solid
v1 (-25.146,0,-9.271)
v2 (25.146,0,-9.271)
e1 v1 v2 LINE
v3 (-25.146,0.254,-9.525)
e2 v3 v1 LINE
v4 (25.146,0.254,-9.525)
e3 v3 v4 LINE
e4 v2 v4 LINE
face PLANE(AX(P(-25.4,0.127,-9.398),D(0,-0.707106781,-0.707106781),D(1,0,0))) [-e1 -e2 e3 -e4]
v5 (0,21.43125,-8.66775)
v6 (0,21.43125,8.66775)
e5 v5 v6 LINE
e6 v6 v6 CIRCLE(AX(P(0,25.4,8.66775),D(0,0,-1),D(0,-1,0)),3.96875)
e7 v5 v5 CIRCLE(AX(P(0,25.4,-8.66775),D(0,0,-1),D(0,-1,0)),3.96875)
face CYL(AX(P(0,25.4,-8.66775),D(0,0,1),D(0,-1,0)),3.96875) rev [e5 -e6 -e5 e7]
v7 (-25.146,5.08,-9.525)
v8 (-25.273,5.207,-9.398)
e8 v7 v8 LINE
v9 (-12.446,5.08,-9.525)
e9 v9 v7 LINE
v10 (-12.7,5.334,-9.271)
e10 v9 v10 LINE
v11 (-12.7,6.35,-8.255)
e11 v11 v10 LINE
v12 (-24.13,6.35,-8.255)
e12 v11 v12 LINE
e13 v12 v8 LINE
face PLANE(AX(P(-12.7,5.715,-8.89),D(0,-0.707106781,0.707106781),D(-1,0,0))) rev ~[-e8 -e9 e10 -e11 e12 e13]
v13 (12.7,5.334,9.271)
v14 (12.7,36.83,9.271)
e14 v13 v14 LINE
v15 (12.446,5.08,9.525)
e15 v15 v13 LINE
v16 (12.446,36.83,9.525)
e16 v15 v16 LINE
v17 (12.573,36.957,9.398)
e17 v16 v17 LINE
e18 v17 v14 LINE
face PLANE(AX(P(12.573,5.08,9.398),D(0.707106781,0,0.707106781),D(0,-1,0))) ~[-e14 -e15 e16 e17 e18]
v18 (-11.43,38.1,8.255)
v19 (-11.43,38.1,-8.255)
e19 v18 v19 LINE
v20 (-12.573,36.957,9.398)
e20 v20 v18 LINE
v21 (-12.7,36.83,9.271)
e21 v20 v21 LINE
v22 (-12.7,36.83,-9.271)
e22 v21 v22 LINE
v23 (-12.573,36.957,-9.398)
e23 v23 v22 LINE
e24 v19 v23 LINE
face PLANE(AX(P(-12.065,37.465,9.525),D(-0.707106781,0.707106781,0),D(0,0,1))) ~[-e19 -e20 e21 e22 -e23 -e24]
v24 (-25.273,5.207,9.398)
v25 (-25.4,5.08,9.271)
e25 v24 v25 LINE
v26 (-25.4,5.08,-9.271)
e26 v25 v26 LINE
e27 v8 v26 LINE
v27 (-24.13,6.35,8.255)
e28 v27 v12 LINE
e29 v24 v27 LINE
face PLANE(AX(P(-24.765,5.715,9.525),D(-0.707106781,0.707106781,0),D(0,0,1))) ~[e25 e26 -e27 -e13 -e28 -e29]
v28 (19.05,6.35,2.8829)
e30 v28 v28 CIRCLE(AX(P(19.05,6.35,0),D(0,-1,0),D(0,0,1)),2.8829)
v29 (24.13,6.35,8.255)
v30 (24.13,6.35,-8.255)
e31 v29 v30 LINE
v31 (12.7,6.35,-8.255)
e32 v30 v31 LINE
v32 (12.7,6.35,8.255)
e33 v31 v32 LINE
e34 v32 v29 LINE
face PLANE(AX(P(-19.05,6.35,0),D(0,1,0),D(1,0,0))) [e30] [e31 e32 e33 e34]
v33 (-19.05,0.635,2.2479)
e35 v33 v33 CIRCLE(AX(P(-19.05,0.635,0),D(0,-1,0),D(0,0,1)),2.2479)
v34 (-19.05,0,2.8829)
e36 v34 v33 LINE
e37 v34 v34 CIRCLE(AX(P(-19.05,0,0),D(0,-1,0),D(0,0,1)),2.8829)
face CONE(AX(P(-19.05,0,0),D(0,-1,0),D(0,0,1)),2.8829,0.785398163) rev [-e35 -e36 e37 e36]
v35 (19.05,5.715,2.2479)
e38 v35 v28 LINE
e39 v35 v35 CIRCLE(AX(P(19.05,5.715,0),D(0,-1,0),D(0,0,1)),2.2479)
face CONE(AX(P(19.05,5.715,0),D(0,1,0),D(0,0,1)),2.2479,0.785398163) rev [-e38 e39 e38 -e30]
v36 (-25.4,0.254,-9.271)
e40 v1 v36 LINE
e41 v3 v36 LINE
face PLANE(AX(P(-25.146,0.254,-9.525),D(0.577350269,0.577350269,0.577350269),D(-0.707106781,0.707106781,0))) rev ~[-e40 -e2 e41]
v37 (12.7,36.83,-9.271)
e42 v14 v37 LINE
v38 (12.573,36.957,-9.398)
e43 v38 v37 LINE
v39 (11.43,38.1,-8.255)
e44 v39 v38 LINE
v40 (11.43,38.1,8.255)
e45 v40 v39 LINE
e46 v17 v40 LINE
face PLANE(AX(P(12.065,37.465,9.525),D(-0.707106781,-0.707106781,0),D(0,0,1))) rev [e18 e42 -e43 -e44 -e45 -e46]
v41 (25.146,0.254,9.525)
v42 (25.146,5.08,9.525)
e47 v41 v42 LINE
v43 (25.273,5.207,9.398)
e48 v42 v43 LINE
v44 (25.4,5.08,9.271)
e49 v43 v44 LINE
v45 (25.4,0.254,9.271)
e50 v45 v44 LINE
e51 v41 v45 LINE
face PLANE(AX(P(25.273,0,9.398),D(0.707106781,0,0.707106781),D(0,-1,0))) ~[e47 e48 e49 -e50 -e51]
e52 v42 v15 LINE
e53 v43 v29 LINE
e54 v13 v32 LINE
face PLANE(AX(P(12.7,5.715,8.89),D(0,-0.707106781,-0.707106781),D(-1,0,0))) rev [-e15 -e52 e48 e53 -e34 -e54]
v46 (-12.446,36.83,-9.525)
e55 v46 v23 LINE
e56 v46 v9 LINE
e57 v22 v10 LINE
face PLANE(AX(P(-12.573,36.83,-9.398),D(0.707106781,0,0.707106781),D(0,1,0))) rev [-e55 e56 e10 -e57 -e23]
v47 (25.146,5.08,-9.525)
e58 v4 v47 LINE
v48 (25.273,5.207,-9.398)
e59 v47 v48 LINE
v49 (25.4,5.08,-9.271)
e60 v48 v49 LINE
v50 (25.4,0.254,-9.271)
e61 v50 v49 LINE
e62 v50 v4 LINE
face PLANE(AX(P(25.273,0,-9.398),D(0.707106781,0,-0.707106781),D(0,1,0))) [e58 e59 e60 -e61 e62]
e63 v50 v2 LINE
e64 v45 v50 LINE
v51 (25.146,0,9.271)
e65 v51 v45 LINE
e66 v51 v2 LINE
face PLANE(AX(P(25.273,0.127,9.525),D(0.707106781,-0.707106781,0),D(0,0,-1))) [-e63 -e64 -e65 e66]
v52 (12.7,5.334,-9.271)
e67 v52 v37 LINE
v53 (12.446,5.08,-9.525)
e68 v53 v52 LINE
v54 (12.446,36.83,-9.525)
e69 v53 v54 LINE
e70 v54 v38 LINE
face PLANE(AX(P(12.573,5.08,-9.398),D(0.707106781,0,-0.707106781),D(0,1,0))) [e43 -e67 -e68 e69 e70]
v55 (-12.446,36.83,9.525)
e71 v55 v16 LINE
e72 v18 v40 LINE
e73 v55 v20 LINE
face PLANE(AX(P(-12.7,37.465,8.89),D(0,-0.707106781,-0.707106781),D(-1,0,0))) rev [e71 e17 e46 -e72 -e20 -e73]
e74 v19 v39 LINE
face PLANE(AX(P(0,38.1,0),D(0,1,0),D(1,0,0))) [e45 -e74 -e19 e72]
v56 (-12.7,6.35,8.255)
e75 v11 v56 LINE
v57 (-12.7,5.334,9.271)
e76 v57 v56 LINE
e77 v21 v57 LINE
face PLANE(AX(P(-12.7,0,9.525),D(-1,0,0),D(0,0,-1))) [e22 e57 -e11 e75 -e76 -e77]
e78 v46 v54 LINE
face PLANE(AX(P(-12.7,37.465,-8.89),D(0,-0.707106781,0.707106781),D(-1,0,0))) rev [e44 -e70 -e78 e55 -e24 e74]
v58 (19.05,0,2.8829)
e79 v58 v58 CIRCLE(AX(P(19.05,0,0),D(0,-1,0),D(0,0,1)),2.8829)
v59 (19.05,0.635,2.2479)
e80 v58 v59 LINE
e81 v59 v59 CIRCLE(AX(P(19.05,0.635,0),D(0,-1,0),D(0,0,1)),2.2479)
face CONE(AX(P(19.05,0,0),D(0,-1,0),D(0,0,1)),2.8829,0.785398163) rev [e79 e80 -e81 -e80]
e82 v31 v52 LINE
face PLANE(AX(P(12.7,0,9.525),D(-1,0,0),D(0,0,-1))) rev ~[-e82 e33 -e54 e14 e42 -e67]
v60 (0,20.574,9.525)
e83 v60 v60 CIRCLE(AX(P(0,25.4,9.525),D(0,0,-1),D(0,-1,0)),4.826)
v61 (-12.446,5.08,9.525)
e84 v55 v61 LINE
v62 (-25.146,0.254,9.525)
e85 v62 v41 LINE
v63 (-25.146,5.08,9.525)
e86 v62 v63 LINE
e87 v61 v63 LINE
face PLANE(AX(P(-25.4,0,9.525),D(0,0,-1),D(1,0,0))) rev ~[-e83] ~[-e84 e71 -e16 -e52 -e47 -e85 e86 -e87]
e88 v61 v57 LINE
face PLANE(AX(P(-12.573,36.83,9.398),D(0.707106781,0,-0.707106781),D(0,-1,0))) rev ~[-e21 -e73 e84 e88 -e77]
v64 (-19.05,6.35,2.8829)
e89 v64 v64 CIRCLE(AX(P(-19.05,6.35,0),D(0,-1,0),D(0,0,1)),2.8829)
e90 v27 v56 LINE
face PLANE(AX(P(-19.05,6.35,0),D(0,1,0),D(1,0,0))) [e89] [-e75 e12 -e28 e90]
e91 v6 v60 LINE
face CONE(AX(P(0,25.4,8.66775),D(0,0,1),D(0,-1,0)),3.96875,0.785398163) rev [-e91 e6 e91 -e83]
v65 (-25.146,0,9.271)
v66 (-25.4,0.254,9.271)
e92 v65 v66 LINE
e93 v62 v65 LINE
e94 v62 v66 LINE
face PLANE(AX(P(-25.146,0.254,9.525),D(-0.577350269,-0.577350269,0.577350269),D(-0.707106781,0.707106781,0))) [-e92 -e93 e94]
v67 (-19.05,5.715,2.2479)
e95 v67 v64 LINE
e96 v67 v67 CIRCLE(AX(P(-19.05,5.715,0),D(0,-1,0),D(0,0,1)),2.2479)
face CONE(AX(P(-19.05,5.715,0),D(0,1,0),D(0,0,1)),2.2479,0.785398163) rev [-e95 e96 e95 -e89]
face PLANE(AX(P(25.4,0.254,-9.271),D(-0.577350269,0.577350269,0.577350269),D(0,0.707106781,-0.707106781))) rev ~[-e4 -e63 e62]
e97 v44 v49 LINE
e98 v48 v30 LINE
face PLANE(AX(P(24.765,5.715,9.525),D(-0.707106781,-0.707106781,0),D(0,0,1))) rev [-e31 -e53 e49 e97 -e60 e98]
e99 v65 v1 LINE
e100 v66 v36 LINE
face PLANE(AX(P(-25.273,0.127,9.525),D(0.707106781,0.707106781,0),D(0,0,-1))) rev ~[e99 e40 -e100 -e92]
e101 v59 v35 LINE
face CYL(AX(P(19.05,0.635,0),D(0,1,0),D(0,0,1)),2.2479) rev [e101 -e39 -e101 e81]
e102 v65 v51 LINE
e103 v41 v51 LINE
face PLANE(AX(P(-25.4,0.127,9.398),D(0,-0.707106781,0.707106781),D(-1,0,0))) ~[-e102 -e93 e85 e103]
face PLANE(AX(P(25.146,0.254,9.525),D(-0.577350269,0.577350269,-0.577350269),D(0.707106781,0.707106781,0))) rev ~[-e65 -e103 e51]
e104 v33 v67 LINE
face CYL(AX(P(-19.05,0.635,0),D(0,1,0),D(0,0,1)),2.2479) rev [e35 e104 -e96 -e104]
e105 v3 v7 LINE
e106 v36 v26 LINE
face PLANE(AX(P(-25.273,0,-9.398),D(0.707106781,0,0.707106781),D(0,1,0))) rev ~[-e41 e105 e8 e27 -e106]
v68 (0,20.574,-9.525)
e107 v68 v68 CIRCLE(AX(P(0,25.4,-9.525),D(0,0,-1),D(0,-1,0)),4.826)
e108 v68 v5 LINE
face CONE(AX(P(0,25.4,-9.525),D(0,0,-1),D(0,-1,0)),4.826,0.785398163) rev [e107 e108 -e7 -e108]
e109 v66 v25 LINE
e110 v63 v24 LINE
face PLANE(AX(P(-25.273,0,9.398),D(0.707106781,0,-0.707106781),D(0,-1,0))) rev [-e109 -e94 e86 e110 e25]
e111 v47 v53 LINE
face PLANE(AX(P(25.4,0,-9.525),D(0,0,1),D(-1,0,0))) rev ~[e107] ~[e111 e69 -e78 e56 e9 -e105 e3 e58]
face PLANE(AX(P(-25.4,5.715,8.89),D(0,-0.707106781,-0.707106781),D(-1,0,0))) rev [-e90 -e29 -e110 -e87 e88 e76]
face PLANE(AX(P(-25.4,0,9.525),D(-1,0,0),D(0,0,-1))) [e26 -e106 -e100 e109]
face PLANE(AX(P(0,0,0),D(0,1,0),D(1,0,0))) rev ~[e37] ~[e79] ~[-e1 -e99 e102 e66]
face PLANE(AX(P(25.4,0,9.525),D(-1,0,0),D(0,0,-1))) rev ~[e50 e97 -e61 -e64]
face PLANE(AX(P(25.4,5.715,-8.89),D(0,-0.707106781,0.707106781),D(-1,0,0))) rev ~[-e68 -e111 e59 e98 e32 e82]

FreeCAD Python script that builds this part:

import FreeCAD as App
import Part
import Sketcher
Q = App.Units.Quantity


def edges_at(feature, points):
    """Names of the edges that pass closest to the given points."""
    edges = feature.Shape.Edges
    near = lambda p: min(range(len(edges)), key=lambda i: edges[i].distToShape(Part.Vertex(*p))[0])
    return sorted({f"Edge{near(p) + 1}" for p in points})


def add_polygon(sketch, points):
    """Adds a closed chain of lines whose ends are joined by coincident constraints."""
    first, n = sketch.GeometryCount, len(points)
    for a, b in zip(points, points[1:] + points[:1]):
        sketch.addGeometry(Part.LineSegment(App.Vector(*a, 0), App.Vector(*b, 0)), False)
    for i in range(n):
        sketch.addConstraint(Sketcher.Constraint("Coincident", first + i, 2, first + (i + 1) % n, 1))

doc = App.newDocument("Part")
params = doc.addObject("Spreadsheet::Sheet", "Params")
for row, (alias, value) in enumerate([
    ("sketch1_width", "2 in"),
    ("sketch1_height", "0.75 in"),
    ("pad1_length", "0.25 in"),
    ("sketch2_width", "1 in"),
    ("sketch2_height", "0.75 in"),
    ("pad2_length", "1.5 in"),
    ("sketch3_width", "0.19 in"),
    ("sketch3_height", "0.75 in"),
    ("groove_angle", "360 deg"),
    ("sketch4_width", "0.2 in"),
    ("sketch4_width2", "0.25 in"),
    ("groove2_angle", "360 deg"),
    ("linearpattern_pitch", "1.5 in"),
    ("chamfer_size", "0.05 in"),
    ("chamfer2_size", "0.01 in"),
], start=1):
    params.set(f"A{row}", alias)
    params.set(f"B{row}", "=" + value)
    params.setAlias(f"B{row}", alias)

body = doc.addObject("PartDesign::Body", "Body")

sketch1 = body.newObject("Sketcher::SketchObject", "Sketch")
sketch1.AttachmentSupport = (doc.getObject("XZ_Plane"), [""])
sketch1.MapMode = "FlatFace"
add_polygon(sketch1, [(-25, -10), (-25, 10), (25, 10), (25, -10)])
sketch1.addConstraint([
    Sketcher.Constraint("Vertical", 0),
    Sketcher.Constraint("Horizontal", 1),
    Sketcher.Constraint("Vertical", 2),
    Sketcher.Constraint("Horizontal", 3),
    Sketcher.Constraint("Symmetric", 0, 2, 2, 2, -1, 1),
    Sketcher.Constraint("DistanceX", 1, 1, 1, 2, Q("2 in")),
    Sketcher.Constraint("DistanceY", 0, 1, 0, 2, Q("0.75 in")),
])
sketch1.setExpression("Constraints[9]", "Params.sketch1_width")
sketch1.setExpression("Constraints[10]", "Params.sketch1_height")
pad1 = body.newObject("PartDesign::Pad", "Pad")
pad1.Profile = sketch1
pad1.setExpression("Length", "Params.pad1_length")
pad1.Reversed = True

sketch2 = body.newObject("Sketcher::SketchObject", "Sketch001")
sketch2.AttachmentSupport = (doc.getObject("XZ_Plane"), [""])
sketch2.MapMode = "FlatFace"
add_polygon(sketch2, [(-13, -10), (-13, 10), (13, 10), (13, -10)])
sketch2.addConstraint([
    Sketcher.Constraint("Vertical", 0),
    Sketcher.Constraint("Horizontal", 1),
    Sketcher.Constraint("Vertical", 2),
    Sketcher.Constraint("Horizontal", 3),
    Sketcher.Constraint("Symmetric", 0, 2, 2, 2, -1, 1),
    Sketcher.Constraint("DistanceX", 1, 1, 1, 2, Q("1 in")),
    Sketcher.Constraint("DistanceY", 0, 1, 0, 2, Q("0.75 in")),
])
sketch2.setExpression("Constraints[9]", "Params.sketch2_width")
sketch2.setExpression("Constraints[10]", "Params.sketch2_height")
pad2 = body.newObject("PartDesign::Pad", "Pad001")
pad2.Profile = sketch2
pad2.setExpression("Length", "Params.pad2_length")
pad2.Reversed = True

sketch3 = body.newObject("Sketcher::SketchObject", "Sketch002")
sketch3.AttachmentSupport = (doc.getObject("YZ_Plane"), [""])
sketch3.MapMode = "FlatFace"
add_polygon(sketch3, [(25.4, -9.5), (25.4, 9.5), (20.6, 9.5), (21.4, 8.7), (21.4, -8.7), (20.6, -9.5)])
sketch3.addGeometry(Part.LineSegment(App.Vector(25.4, 9.5, 0), App.Vector(25.4, -9.5, 0)), True)
sketch3.addConstraint([
    Sketcher.Constraint("Vertical", 0),
    Sketcher.Constraint("Horizontal", 1),
    Sketcher.Constraint("Vertical", 3),
    Sketcher.Constraint("Horizontal", 5),
    Sketcher.Constraint("Vertical", 6),
    Sketcher.Constraint("Coincident", 6, 1, 0, 2),
    Sketcher.Constraint("Symmetric", 1, 2, 4, 2, -1),
    Sketcher.Constraint("Perpendicular", 2, 4),
    Sketcher.Constraint("Horizontal", 4, 2, 6, 2),
    Sketcher.Constraint("Equal", 2, 4),
    Sketcher.Constraint("DistanceX", -1, 1, 0, 2, Q("1 in")),
    Sketcher.Constraint("DistanceX", 1, 2, 1, 1, Q("0.19 in")),
    Sketcher.Constraint("DistanceY", 0, 1, 0, 2, Q("0.75 in")),
    Sketcher.Constraint("DistanceY", 3, 2, 3, 1, Q("0.6825 in")),
])
sketch3.setExpression("Constraints[17]", "Params.sketch3_width")
sketch3.setExpression("Constraints[18]", "Params.sketch3_height")
groove = body.newObject("PartDesign::Groove", "Groove")
groove.Profile = sketch3
groove.ReferenceAxis = (sketch3, ["Axis0"])
groove.setExpression("Angle", "Params.groove_angle")

sketch4 = body.newObject("Sketcher::SketchObject", "Sketch003")
sketch4.AttachmentSupport = (doc.getObject("YZ_Plane"), [""])
sketch4.MapMode = "FlatFace"
sketch4.AttachmentOffset = App.Placement(App.Vector(0, 0, -0.75 * 25.4), App.Rotation())
add_polygon(sketch4, [(0, 0), (6.3, 0), (6.3, 2.9), (5.7, 2.2), (0.6, 2.2), (0, 2.9)])
sketch4.addConstraint([
    Sketcher.Constraint("Horizontal", 0),
    Sketcher.Constraint("Vertical", 1),
    Sketcher.Constraint("Horizontal", 3),
    Sketcher.Constraint("Vertical", 5),
    Sketcher.Constraint("Coincident", 5, 2, -1, 1),
    Sketcher.Constraint("Perpendicular", 2, 4),
    Sketcher.Constraint("Horizontal", 1, 2, 4, 2),
    Sketcher.Constraint("Equal", 2, 4),
    Sketcher.Constraint("DistanceX", 3, 2, 3, 1, Q("0.2 in")),
    Sketcher.Constraint("DistanceX", 0, 1, 0, 2, Q("0.25 in")),
    Sketcher.Constraint("DistanceY", 1, 1, 1, 2, Q("0.1135 in")),
])
sketch4.setExpression("Constraints[14]", "Params.sketch4_width")
sketch4.setExpression("Constraints[15]", "Params.sketch4_width2")
groove2 = body.newObject("PartDesign::Groove", "Groove001")
groove2.Profile = sketch4
groove2.ReferenceAxis = (sketch4, ["H_Axis"])
groove2.setExpression("Angle", "Params.groove2_angle")
doc.recompute()

linearpattern = body.newObject("PartDesign::LinearPattern", "LinearPattern")
linearpattern.Originals = [groove2]
linearpattern.Direction = (doc.getObject("X_Axis"), [""])
linearpattern.Mode = "offset"
linearpattern.setExpression("Offset", "Params.linearpattern_pitch")
linearpattern.Occurrences = 2
body.Tip = linearpattern
doc.recompute()

chamfer = body.newObject("PartDesign::Chamfer", "Chamfer")
chamfer.Base = (linearpattern, edges_at(linearpattern, [
    (25.4, 6.35, 0),
    (-19.05, 6.35, -9.525),
    (19.05, 6.35, 9.525),
    (19.05, 6.35, -9.525),
    (-25.4, 6.35, 0),
    (0, 38.1, -9.525),
    (-12.7, 38.1, 0),
    (0, 38.1, 9.525),
    (12.7, 38.1, 0),
    (-19.05, 6.35, 9.525),
]))
chamfer.setExpression("Size", "Params.chamfer_size")
doc.recompute()

chamfer2 = body.newObject("PartDesign::Chamfer", "Chamfer001")
chamfer2.Base = (chamfer, edges_at(chamfer, [
    (-25.4, 0, 0),
    (0, 0, -9.525),
    (-12.7, 20.955, -9.525),
    (-12.7, 20.955, 9.525),
    (25.4, 0, 0),
    (12.7, 20.955, -9.525),
    (25.4, 2.54, -9.525),
    (-25.4, 2.54, -9.525),
    (0, 0, 9.525),
    (12.7, 20.955, 9.525),
    (25.4, 2.54, 9.525),
    (-25.4, 2.54, 9.525),
]))
chamfer2.setExpression("Size", "Params.chamfer2_size")

doc.recompute()
